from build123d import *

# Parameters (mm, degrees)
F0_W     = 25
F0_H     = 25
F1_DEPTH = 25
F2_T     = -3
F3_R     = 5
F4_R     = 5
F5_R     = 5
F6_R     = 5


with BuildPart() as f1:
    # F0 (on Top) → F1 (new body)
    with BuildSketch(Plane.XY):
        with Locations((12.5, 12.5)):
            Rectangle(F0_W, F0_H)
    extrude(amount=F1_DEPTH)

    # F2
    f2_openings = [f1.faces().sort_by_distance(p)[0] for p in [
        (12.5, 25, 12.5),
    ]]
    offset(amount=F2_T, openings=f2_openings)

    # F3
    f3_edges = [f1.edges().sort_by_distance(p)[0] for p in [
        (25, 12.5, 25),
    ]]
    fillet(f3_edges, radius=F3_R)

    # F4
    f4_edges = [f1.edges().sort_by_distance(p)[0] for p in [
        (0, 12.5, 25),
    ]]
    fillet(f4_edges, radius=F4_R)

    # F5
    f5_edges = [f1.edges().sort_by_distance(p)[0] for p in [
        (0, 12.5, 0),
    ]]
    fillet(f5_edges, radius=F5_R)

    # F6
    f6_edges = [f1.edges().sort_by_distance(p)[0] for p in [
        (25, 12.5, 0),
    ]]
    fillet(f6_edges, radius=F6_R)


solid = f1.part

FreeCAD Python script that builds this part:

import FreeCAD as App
import Part
import Sketcher
from FreeCAD import Vector
Q = App.Units.Quantity


def edges_at(feature, points):
    """Names of the edges that pass closest to the given points."""
    edges = feature.Shape.Edges
    near = lambda p: min(range(len(edges)), key=lambda i: edges[i].distToShape(Part.Vertex(*p))[0])
    return sorted({f"Edge{near(p) + 1}" for p in points})


def faces_at(feature, points):
    """Names of the faces that lie closest to the given points."""
    faces = feature.Shape.Faces
    near = lambda p: min(range(len(faces)), key=lambda i: faces[i].distToShape(Part.Vertex(*p))[0])
    return sorted({f"Face{near(p) + 1}" for p in points})

doc = App.newDocument("Part")
body = doc.addObject("PartDesign::Body", "Body")

# Sketch on XY plane
sketch1 = doc.addObject("Sketcher::SketchObject", "Sketch")
body.addObject(sketch1)
sketch1.AttachmentSupport = (doc.XY_Plane, [""])
sketch1.MapMode = "FlatFace"
sketch1.addGeometry([
    Part.LineSegment(Vector(0, 25, 0), Vector(0, 0, 0)),
    Part.LineSegment(Vector(0, 0, 0), Vector(25, 0, 0)),
    Part.LineSegment(Vector(25, 0, 0), Vector(25, 25, 0)),
    Part.LineSegment(Vector(25, 25, 0), Vector(0, 25, 0)),
], False)
sketch1.addConstraint([
    Sketcher.Constraint("Coincident", 0, 2, 1, 1),
    Sketcher.Constraint("Coincident", 1, 2, 2, 1),
    Sketcher.Constraint("Coincident", 2, 2, 3, 1),
    Sketcher.Constraint("Coincident", 3, 2, 0, 1),
    Sketcher.Constraint("Vertical", 0),
    Sketcher.Constraint("Horizontal", 1),
    Sketcher.Constraint("Vertical", 2),
    Sketcher.Constraint("Horizontal", 3),
    Sketcher.Constraint("Coincident", 0, 2, -1, 1),
    Sketcher.Constraint("Equal", 3, 0),
    Sketcher.Constraint("DistanceX", 1, 1, 1, 2, Q("25 mm")),
])
pad1 = doc.addObject("PartDesign::Pad", "Pad")
body.addObject(pad1)
pad1.Profile = sketch1
pad1.Length = 25
doc.recompute()

thickness = doc.addObject("PartDesign::Thickness", "Thickness")
body.addObject(thickness)
thickness.Base = (pad1, faces_at(pad1, [(12.5, 25, 12.5)]))
thickness.Value = 3
thickness.Reversed = True
thickness.Join = "Arc"
doc.recompute()

fillet = doc.addObject("PartDesign::Fillet", "Fillet")
body.addObject(fillet)
fillet.Base = (thickness, edges_at(thickness, [(25, 12.5, 25)]))
fillet.Radius = 5
doc.recompute()

fillet2 = doc.addObject("PartDesign::Fillet", "Fillet001")
body.addObject(fillet2)
fillet2.Base = (fillet, edges_at(fillet, [(0, 12.5, 25)]))
fillet2.Radius = 5
doc.recompute()

fillet3 = doc.addObject("PartDesign::Fillet", "Fillet002")
body.addObject(fillet3)
fillet3.Base = (fillet2, edges_at(fillet2, [(0, 12.5, 0)]))
fillet3.Radius = 5
doc.recompute()

fillet4 = doc.addObject("PartDesign::Fillet", "Fillet003")
body.addObject(fillet4)
fillet4.Base = (fillet3, edges_at(fillet3, [(25, 12.5, 0)]))
fillet4.Radius = 5

doc.recompute()
